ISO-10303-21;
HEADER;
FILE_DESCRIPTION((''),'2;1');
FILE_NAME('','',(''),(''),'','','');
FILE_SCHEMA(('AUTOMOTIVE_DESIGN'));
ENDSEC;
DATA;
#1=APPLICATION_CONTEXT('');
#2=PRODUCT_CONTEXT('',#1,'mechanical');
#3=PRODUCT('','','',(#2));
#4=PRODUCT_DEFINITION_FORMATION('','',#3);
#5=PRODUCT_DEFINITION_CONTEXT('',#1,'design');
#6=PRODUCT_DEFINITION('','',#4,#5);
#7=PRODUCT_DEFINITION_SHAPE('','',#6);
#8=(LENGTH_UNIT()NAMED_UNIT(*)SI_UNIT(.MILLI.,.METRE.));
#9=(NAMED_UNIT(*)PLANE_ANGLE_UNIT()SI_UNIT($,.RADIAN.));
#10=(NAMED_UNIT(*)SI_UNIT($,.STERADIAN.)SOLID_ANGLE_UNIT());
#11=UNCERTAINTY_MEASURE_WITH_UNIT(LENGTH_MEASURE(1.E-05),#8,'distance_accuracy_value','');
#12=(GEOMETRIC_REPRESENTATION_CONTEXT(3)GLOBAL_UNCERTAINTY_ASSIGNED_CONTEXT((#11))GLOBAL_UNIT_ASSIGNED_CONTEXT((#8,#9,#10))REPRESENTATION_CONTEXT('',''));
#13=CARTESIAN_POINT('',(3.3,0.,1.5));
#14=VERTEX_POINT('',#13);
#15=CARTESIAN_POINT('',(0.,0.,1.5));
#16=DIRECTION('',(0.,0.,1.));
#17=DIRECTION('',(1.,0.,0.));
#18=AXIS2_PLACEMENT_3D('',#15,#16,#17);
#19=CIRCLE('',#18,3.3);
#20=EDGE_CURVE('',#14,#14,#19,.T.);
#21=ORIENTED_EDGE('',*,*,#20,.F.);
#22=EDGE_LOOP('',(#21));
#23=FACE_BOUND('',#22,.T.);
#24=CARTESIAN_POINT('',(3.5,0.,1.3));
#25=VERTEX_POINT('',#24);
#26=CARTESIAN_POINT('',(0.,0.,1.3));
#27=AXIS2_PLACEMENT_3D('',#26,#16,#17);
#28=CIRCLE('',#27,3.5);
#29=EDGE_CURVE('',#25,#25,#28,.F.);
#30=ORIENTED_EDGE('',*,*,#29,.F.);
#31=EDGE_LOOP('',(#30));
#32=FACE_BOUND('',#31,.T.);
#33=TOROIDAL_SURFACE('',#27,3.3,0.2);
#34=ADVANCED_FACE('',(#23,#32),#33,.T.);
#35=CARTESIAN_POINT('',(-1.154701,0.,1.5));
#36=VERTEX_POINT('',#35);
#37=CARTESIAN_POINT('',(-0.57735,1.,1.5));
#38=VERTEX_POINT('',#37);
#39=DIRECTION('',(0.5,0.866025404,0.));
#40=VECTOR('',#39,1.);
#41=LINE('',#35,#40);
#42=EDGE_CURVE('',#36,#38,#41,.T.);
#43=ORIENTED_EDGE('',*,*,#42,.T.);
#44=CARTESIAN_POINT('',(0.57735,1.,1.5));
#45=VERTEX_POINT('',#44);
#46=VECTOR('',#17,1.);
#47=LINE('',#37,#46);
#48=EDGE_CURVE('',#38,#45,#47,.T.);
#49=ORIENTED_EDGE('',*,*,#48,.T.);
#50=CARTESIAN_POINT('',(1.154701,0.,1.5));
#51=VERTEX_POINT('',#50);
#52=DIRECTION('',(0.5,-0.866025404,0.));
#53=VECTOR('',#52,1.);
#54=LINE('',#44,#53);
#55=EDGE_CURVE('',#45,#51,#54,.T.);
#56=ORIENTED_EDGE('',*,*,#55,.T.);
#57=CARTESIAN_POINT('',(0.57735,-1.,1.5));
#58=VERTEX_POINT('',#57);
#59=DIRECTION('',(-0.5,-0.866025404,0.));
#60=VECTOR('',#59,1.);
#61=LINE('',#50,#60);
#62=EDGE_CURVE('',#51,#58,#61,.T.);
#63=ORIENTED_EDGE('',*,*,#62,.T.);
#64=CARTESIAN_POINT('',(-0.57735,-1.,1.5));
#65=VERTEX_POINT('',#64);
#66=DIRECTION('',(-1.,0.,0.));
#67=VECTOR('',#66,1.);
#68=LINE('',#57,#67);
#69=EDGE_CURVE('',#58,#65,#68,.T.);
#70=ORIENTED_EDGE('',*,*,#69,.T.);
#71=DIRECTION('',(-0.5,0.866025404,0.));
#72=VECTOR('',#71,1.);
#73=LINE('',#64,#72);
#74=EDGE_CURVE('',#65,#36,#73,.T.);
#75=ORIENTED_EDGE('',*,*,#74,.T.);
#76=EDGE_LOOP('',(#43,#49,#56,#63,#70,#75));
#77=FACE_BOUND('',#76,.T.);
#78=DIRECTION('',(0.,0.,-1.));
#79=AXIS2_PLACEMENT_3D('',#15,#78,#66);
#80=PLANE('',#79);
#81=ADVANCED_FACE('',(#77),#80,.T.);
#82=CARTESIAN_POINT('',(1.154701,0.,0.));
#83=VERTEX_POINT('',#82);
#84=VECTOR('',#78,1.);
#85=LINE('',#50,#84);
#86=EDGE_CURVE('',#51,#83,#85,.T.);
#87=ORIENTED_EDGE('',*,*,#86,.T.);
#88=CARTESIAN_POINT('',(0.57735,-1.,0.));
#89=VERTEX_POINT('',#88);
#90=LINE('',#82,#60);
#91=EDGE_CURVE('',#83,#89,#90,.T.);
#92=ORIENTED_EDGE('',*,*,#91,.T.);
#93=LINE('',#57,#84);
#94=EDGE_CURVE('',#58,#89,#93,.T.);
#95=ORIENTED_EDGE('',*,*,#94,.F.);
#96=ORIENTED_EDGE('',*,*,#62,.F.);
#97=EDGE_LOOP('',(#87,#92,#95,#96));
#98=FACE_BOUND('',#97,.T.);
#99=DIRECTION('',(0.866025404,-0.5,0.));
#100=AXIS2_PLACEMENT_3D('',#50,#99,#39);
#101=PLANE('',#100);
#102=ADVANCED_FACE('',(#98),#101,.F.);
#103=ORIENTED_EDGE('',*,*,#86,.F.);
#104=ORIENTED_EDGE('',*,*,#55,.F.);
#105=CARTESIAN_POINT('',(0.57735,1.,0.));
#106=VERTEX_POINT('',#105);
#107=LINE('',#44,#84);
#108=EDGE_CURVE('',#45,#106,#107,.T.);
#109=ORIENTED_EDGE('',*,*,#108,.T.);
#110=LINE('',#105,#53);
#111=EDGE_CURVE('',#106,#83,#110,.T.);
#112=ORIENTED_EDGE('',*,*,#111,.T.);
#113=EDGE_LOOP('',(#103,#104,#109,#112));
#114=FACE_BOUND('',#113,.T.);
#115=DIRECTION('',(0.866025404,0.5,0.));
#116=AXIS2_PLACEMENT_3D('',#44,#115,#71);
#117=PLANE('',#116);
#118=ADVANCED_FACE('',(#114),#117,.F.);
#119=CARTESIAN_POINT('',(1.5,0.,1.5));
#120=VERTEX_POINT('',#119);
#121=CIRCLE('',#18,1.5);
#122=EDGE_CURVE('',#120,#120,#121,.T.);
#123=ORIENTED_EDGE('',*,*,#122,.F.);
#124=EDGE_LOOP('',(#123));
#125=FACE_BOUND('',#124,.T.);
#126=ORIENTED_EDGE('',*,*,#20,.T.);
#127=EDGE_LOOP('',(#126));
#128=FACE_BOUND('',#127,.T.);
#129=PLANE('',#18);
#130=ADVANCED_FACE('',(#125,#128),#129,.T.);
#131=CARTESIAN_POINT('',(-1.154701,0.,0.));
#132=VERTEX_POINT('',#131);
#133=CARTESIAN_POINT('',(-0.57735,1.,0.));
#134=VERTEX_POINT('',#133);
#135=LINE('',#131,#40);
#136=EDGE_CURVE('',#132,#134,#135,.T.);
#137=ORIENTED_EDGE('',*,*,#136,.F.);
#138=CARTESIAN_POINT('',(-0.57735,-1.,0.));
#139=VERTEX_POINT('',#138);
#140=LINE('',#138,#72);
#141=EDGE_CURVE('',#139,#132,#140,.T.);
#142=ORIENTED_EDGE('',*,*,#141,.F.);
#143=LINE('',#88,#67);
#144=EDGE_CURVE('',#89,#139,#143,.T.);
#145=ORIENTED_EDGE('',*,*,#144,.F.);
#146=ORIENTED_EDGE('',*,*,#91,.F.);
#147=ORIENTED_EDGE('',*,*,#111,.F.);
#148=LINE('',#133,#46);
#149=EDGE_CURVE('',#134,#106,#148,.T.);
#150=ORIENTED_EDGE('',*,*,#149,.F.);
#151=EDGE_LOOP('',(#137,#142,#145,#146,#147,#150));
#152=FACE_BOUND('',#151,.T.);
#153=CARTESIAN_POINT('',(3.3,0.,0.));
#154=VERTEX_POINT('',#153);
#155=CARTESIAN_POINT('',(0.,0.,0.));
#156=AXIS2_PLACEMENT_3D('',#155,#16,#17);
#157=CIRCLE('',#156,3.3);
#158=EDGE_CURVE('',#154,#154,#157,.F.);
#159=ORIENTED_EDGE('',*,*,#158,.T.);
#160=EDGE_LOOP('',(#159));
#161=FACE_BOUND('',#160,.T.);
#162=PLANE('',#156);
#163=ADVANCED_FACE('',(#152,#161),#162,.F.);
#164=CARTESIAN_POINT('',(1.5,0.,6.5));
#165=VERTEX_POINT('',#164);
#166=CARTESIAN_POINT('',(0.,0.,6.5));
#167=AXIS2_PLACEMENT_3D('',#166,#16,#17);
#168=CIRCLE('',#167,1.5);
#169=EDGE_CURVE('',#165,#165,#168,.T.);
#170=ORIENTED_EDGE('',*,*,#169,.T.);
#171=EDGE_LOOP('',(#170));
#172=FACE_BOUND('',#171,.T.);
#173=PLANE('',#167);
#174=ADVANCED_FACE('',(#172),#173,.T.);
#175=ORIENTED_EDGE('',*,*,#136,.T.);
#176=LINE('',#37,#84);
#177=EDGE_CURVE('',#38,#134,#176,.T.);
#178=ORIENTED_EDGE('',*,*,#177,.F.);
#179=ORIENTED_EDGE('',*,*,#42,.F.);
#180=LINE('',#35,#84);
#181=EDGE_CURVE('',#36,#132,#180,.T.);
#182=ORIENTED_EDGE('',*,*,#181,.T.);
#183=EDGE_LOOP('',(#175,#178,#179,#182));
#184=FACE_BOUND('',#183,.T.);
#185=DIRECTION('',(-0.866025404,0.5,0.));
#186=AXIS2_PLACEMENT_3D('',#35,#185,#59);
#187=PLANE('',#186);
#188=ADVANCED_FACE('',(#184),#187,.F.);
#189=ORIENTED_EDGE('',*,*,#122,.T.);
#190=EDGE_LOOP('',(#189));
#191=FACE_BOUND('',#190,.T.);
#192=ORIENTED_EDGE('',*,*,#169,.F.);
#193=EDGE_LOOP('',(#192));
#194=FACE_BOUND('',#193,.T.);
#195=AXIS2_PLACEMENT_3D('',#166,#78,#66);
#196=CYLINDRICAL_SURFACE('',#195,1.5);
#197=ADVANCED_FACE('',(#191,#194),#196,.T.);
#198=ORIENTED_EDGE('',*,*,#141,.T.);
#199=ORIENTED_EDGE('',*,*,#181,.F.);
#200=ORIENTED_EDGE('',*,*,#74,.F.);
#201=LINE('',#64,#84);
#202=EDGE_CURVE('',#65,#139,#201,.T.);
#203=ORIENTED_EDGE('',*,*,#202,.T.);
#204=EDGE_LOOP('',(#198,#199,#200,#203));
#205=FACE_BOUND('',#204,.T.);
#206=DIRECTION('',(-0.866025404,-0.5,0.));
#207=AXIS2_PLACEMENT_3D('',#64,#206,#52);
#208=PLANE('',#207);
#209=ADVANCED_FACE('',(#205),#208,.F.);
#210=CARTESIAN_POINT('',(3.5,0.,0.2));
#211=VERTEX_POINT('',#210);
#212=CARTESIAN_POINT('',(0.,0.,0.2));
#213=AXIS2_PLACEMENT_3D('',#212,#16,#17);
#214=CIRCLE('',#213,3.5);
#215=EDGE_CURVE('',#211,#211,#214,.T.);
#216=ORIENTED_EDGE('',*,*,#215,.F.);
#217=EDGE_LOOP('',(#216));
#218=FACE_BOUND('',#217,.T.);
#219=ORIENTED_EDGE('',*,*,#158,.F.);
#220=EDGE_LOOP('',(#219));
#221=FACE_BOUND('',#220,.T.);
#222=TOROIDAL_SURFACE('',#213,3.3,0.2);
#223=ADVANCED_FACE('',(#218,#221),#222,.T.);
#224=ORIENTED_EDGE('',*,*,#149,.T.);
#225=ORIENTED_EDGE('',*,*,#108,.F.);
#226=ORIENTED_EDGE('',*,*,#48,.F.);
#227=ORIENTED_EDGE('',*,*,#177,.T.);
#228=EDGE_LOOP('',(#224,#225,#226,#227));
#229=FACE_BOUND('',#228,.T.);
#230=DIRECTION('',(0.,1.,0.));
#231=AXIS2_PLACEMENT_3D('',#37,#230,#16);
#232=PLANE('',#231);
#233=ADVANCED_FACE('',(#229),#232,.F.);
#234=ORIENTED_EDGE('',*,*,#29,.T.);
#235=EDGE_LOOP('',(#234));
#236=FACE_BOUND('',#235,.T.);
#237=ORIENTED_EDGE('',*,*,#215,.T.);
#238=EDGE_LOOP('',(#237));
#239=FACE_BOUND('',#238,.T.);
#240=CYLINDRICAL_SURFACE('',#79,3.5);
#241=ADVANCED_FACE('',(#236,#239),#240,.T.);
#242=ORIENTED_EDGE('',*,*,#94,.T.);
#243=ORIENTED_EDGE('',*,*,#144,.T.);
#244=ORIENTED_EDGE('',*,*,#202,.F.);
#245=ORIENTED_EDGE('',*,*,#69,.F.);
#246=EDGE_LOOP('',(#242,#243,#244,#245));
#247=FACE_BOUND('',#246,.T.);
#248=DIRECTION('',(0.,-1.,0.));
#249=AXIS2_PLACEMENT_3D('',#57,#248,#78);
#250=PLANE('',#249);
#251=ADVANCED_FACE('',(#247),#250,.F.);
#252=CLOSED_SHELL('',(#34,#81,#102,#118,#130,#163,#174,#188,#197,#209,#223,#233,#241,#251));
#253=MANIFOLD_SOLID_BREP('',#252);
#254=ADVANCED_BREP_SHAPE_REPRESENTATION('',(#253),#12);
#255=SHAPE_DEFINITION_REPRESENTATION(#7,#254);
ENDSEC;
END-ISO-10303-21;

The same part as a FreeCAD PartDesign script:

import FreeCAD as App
import Part
import Sketcher

V = App.Vector
Q = App.Units.Quantity


def edges_at(feature, points):
    """Names of the edges that pass closest to the given points."""
    edges = feature.Shape.Edges
    near = lambda p: min(range(len(edges)), key=lambda i: edges[i].distToShape(Part.Vertex(*p))[0])
    return sorted({f"Edge{near(p) + 1}" for p in points})


def add_polygon(sketch, points):
    """Adds a closed chain of lines whose ends are joined by coincident constraints."""
    first, n = sketch.GeometryCount, len(points)
    for a, b in zip(points, points[1:] + points[:1]):
        sketch.addGeometry(Part.LineSegment(App.Vector(*a, 0), App.Vector(*b, 0)), False)
    for i in range(n):
        sketch.addConstraint(Sketcher.Constraint("Coincident", first + i, 2, first + (i + 1) % n, 1))

doc = App.newDocument("Part")
body = doc.addObject("PartDesign::Body", "Body")

# Sketch on XY plane
sketch1 = body.newObject("Sketcher::SketchObject", "Sketch")
sketch1.AttachmentSupport = (doc.getObject("XY_Plane"), [""])
sketch1.MapMode = "FlatFace"
sketch1.addGeometry(Part.Circle(V(0, 0, 0), V(0, 0, 1), 3.5), False)
sketch1.addConstraint(Sketcher.Constraint("Coincident", 0, 3, -1, 1))
sketch1.addConstraint(Sketcher.Constraint("Diameter", 0, Q("7 mm")))
pad1 = body.newObject("PartDesign::Pad", "Pad")
pad1.Profile = sketch1
pad1.Length = 1.5

# Sketch on XY plane
sketch2 = body.newObject("Sketcher::SketchObject", "Sketch001")
sketch2.AttachmentSupport = (doc.getObject("XY_Plane"), [""])
sketch2.MapMode = "FlatFace"
sketch2.AttachmentOffset = App.Placement(V(0, 0, 1.5), App.Rotation())
sketch2.addGeometry(Part.Circle(V(0, 0, 0), V(0, 0, 1), 1.5), False)
sketch2.addConstraint(Sketcher.Constraint("Coincident", 0, 3, -1, 1))
sketch2.addConstraint(Sketcher.Constraint("Diameter", 0, Q("3 mm")))
pad2 = body.newObject("PartDesign::Pad", "Pad001")
pad2.Profile = sketch2
pad2.Length = 5
doc.recompute()

fillet = body.newObject("PartDesign::Fillet", "Fillet")
fillet.Base = (pad2, edges_at(pad2, [(-3.5, 0, 0), (-3.5, 0, 1.5)]))
fillet.Radius = 0.2

# Sketch on XY plane
sketch3 = body.newObject("Sketcher::SketchObject", "Sketch002")
sketch3.AttachmentSupport = (doc.getObject("XY_Plane"), [""])
sketch3.MapMode = "FlatFace"
add_polygon(sketch3, [(-1.2, 0), (-0.6, 1), (0.6, 1), (1.2, 0), (0.6, -1), (-0.6, -1)])  # lines 0-5
sketch3.addConstraint(Sketcher.Constraint("Horizontal", 1))
sketch3.addConstraint(Sketcher.Constraint("Horizontal", 4))
sketch3.addConstraint(Sketcher.Constraint("Symmetric", 0, 2, 3, 2, -1, 1))
sketch3.addConstraint(Sketcher.Constraint("Symmetric", 2, 2, 5, 2, -1, 1))
sketch3.addConstraint(Sketcher.Constraint("PointOnObject", 2, 2, -1))
sketch3.addConstraint(Sketcher.Constraint("Parallel", 2, 5))
sketch3.addConstraint(Sketcher.Constraint("Vertical", 1, 2, 3, 2))
sketch3.addConstraint(Sketcher.Constraint("Angle", 0, Q("60 deg")))
sketch3.addConstraint(Sketcher.Constraint("DistanceY", -1, 1, 0, 2, Q("1 mm")))
sketch3.addConstraint(Sketcher.Constraint("DistanceX", 1, 1, 1, 2, Q("1.154701 mm")))
pocket1 = body.newObject("PartDesign::Pocket", "Pocket")
pocket1.Profile = sketch3
pocket1.Length = 1.5
pocket1.Reversed = True

doc.recompute()
